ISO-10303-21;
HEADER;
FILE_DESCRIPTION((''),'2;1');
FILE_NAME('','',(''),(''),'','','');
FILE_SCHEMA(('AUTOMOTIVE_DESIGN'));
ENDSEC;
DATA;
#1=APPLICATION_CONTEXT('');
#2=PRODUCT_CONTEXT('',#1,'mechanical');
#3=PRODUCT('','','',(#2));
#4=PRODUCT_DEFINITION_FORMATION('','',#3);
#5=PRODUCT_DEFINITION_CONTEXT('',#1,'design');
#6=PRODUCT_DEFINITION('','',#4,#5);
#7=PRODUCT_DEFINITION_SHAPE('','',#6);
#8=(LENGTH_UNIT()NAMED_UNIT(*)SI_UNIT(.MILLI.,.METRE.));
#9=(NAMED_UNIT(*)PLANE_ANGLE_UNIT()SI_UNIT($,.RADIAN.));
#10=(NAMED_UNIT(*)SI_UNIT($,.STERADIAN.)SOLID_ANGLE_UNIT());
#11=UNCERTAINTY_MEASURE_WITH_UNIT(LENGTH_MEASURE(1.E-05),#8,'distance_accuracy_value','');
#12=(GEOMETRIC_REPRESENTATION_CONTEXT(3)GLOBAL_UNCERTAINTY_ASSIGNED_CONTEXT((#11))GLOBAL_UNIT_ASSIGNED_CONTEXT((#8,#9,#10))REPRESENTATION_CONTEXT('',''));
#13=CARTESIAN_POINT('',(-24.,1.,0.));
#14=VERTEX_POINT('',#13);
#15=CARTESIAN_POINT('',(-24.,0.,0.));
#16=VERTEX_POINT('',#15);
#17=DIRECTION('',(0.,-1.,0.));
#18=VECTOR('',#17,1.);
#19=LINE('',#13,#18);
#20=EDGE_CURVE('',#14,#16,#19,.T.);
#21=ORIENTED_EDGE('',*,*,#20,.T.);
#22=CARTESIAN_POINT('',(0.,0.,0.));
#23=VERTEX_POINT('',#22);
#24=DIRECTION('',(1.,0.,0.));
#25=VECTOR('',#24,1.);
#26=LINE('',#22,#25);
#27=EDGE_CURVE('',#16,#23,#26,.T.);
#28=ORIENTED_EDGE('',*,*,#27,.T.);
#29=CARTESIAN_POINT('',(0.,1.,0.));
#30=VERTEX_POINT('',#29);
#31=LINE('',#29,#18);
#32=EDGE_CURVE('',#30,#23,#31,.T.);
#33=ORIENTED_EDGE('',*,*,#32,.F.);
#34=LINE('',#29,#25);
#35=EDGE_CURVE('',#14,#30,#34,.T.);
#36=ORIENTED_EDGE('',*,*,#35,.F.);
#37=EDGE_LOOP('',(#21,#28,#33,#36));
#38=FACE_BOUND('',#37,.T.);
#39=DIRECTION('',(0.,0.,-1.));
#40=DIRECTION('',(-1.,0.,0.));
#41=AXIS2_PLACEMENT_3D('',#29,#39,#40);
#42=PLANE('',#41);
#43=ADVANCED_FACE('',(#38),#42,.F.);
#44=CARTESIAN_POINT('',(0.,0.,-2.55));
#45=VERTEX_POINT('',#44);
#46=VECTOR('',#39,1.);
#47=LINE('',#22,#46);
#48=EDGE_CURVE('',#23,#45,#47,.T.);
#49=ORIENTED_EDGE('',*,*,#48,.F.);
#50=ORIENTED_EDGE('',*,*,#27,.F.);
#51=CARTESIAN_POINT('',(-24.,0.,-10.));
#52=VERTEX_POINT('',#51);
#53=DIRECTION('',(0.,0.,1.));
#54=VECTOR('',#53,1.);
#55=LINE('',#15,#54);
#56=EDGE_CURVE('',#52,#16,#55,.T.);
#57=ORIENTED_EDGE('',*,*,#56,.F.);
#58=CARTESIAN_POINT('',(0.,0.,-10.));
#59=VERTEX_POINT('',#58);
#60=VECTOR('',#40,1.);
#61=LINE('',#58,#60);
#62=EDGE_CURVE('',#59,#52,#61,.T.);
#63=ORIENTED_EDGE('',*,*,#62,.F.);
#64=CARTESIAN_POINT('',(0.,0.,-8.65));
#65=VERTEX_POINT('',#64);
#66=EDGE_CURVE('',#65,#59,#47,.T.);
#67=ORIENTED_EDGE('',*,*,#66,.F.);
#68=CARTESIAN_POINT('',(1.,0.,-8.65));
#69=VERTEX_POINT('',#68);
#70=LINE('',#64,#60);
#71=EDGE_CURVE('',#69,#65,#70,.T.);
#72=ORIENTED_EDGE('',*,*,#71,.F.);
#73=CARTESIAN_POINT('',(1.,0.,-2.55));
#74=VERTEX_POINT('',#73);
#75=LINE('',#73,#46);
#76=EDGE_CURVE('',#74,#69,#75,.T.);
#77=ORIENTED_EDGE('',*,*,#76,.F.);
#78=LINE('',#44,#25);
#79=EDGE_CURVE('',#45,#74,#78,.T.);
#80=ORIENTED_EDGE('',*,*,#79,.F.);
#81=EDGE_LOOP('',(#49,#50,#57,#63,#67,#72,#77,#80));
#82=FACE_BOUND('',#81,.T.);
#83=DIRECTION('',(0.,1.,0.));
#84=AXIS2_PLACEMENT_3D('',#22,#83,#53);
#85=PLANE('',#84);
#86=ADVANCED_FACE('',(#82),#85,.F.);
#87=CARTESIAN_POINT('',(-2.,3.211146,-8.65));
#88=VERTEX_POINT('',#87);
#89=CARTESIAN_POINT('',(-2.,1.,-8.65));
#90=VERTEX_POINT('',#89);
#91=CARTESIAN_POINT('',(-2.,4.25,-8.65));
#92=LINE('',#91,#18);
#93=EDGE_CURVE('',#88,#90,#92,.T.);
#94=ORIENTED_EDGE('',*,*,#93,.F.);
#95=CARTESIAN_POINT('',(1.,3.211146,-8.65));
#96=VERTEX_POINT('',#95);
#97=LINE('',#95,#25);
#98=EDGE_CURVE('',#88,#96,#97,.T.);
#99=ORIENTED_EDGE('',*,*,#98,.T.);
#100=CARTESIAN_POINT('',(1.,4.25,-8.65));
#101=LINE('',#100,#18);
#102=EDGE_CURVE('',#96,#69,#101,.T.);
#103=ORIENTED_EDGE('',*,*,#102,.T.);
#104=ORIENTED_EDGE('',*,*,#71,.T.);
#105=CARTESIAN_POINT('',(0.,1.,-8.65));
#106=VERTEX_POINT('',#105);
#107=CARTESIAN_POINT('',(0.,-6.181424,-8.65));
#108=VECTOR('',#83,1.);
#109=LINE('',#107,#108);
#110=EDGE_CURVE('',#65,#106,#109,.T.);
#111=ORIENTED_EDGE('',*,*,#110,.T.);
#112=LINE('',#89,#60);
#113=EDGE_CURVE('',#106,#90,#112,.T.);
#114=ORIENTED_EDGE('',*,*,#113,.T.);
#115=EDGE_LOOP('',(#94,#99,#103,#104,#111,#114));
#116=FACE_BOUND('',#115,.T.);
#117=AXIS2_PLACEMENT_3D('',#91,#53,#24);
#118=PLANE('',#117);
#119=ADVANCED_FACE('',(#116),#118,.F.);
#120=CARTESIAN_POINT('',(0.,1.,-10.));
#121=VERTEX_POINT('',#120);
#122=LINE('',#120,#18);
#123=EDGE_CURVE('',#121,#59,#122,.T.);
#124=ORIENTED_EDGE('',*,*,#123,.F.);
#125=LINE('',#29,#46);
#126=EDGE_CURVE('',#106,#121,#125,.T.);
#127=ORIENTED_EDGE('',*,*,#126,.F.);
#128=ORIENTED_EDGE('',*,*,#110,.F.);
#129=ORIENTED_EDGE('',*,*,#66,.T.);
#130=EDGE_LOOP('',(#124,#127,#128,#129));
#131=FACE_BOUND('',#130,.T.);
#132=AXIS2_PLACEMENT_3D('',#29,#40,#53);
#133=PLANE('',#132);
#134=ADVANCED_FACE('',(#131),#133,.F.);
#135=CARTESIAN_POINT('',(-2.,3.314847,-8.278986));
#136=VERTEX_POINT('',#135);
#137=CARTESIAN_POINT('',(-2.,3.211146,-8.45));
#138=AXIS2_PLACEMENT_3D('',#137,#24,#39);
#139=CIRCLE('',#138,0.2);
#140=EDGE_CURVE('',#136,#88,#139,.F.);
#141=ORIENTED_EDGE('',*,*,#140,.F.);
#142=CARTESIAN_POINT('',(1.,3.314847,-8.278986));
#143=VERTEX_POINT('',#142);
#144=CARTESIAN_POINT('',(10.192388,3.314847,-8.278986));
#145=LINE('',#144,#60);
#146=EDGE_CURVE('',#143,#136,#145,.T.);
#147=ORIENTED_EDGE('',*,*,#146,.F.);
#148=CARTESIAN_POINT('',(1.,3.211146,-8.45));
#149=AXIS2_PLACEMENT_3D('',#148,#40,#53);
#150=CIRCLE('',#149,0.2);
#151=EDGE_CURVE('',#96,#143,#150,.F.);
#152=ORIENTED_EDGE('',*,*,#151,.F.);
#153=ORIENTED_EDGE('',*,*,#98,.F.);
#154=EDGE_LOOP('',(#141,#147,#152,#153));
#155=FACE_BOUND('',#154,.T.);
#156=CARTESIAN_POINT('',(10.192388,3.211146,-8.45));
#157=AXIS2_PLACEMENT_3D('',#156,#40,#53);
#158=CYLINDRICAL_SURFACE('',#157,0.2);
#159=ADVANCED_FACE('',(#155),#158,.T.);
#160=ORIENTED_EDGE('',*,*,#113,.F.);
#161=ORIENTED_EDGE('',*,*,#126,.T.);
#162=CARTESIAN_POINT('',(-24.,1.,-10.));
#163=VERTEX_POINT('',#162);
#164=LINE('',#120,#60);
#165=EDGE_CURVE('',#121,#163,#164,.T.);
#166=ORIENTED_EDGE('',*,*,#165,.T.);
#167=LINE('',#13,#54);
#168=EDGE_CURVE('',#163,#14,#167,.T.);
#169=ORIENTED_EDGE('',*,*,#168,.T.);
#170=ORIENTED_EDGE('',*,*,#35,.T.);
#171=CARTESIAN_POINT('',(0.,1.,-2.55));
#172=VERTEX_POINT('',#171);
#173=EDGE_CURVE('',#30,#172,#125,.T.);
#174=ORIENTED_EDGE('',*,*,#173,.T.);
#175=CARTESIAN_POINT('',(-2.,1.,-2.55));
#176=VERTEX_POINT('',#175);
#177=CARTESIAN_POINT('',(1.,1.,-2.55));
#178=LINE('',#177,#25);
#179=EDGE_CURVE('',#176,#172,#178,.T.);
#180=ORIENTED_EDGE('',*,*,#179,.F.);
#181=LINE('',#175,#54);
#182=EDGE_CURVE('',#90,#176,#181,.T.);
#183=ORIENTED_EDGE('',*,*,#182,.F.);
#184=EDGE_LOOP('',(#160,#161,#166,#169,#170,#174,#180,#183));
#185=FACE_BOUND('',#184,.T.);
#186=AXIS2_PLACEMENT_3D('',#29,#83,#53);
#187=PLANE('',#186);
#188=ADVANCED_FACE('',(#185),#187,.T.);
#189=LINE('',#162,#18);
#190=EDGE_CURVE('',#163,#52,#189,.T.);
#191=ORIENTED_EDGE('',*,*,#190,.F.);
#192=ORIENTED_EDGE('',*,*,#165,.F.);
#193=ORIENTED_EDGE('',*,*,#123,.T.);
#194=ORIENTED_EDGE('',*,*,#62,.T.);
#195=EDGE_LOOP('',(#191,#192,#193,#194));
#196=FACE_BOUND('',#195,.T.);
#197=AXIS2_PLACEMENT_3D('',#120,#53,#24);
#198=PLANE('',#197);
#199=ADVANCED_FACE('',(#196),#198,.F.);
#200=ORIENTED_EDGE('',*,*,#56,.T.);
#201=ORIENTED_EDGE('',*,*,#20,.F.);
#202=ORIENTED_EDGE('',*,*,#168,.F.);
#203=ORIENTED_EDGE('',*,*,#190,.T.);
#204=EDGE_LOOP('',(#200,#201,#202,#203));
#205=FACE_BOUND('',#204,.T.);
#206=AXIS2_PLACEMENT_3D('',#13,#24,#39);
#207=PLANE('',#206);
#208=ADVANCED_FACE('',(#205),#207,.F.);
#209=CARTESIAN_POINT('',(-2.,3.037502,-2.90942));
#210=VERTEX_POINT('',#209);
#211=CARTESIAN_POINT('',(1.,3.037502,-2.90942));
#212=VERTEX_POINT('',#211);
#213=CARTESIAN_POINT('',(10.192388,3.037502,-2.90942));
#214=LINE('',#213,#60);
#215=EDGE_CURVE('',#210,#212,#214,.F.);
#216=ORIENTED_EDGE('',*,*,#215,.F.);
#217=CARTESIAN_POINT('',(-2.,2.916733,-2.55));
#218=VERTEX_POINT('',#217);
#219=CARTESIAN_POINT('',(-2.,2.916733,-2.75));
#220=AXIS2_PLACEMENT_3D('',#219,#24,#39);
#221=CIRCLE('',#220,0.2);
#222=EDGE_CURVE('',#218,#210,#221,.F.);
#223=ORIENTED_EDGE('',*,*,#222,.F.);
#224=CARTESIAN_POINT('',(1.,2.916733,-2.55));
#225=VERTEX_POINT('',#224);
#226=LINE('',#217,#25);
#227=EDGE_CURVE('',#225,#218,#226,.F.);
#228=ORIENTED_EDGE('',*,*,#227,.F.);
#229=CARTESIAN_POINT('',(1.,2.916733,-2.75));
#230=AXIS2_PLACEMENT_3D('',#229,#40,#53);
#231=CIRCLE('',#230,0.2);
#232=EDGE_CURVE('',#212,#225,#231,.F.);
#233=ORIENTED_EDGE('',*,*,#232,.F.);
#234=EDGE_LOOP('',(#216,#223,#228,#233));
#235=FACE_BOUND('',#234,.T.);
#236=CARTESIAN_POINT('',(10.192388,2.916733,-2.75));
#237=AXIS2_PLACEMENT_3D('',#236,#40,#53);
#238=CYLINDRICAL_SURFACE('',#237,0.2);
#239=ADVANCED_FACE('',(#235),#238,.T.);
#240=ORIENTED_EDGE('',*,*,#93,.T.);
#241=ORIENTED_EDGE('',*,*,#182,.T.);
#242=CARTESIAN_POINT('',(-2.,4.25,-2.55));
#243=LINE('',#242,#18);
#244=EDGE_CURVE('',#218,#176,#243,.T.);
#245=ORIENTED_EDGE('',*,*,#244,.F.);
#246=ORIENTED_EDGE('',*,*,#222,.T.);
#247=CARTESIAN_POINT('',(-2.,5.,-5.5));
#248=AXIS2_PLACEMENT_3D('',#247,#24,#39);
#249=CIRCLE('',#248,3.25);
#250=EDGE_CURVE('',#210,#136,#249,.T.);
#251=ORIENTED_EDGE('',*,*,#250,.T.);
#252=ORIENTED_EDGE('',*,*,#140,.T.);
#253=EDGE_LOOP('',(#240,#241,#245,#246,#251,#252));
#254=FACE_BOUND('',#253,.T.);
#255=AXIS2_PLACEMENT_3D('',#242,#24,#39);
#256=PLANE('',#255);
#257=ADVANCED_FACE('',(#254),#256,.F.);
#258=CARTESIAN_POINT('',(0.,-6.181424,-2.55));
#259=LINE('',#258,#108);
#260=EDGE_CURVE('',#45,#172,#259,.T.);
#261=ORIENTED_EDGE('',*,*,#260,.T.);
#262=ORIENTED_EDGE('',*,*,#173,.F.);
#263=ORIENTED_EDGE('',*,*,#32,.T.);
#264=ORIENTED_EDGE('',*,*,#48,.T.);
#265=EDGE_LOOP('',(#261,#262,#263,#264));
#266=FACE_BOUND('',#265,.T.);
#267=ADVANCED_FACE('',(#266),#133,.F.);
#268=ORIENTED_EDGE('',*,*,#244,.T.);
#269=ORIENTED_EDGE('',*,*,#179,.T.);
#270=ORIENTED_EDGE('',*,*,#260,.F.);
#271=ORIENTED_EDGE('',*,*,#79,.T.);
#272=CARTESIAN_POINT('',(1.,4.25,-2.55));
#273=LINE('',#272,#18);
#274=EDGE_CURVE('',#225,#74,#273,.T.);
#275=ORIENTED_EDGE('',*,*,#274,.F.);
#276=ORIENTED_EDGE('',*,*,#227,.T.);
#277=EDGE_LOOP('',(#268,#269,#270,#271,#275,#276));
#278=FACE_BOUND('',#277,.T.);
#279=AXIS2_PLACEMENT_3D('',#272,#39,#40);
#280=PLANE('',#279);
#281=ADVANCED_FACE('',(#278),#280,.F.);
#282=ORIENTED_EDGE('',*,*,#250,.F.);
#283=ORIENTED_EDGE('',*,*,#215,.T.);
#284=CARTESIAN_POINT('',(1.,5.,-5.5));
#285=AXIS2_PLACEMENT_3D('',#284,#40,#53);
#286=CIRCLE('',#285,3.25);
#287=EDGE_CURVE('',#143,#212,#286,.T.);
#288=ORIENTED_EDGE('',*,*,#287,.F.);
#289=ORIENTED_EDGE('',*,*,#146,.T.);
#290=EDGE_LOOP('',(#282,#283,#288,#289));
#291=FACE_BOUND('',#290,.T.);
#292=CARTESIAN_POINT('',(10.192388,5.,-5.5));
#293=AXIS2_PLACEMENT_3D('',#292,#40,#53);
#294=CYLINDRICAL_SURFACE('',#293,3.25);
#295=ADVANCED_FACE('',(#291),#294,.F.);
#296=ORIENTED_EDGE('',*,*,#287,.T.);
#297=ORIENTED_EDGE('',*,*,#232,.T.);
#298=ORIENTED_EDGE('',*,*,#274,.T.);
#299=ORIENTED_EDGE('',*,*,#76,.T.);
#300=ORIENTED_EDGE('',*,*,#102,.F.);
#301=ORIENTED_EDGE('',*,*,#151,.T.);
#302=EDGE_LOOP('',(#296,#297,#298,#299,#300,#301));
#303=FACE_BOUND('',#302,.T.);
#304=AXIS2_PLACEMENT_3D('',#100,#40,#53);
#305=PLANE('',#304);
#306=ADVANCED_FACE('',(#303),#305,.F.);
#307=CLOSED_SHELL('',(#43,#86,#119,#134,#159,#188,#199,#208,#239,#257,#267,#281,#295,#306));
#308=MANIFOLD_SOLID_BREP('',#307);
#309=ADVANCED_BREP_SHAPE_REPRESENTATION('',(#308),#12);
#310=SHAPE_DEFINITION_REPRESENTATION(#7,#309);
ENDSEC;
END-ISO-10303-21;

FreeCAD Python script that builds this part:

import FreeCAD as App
import Part
import Sketcher


def edges_at(feature, points):
    """Names of the edges that pass closest to the given points."""
    edges = feature.Shape.Edges
    near = lambda p: min(range(len(edges)), key=lambda i: edges[i].distToShape(Part.Vertex(*p))[0])
    return sorted({f"Edge{near(p) + 1}" for p in points})

doc = App.newDocument("Part")
body = doc.addObject("PartDesign::Body", "Body")

sketch1 = body.newObject("Sketcher::SketchObject", "Sketch")
sketch1.AttachmentSupport = (doc.getObject("XZ_Plane"), [""])
sketch1.MapMode = "FlatFace"
sketch1.addGeometry([
    Part.LineSegment(App.Vector(-24, -10, 0), App.Vector(-24, 0, 0)),
    Part.LineSegment(App.Vector(-24, 0, 0), App.Vector(0, 0, 0)),
    Part.LineSegment(App.Vector(0, 0, 0), App.Vector(0, -10, 0)),
    Part.LineSegment(App.Vector(0, -10, 0), App.Vector(-24, -10, 0)),
], False)
sketch1.addConstraint([
    Sketcher.Constraint("Coincident", 0, 2, 1, 1),
    Sketcher.Constraint("Coincident", 1, 2, 2, 1),
    Sketcher.Constraint("Coincident", 2, 2, 3, 1),
    Sketcher.Constraint("Coincident", 3, 2, 0, 1),
    Sketcher.Constraint("Vertical", 0),
    Sketcher.Constraint("Horizontal", 1),
    Sketcher.Constraint("Vertical", 2),
    Sketcher.Constraint("Horizontal", 3),
    Sketcher.Constraint("Coincident", 1, 2, -1, 1),
    Sketcher.Constraint("DistanceX", 1, 1, 1, 2, 24.0),
    Sketcher.Constraint("DistanceY", 0, 1, 0, 2, 10.0),
])
pad1 = body.newObject("PartDesign::Pad", "Pad")
pad1.Profile = sketch1
pad1.Length = 1
pad1.Reversed = True

sketch2 = body.newObject("Sketcher::SketchObject", "Sketch001")
sketch2.AttachmentSupport = (doc.getObject("XZ_Plane"), [""])
sketch2.MapMode = "FlatFace"
sketch2.AttachmentOffset = App.Placement(App.Vector(0, 0, -1), App.Rotation())
sketch2.addGeometry([
    Part.LineSegment(App.Vector(-2, -8.65, 0), App.Vector(-2, -2.55, 0)),
    Part.LineSegment(App.Vector(-2, -2.55, 0), App.Vector(1, -2.55, 0)),
    Part.LineSegment(App.Vector(1, -2.55, 0), App.Vector(1, -8.65, 0)),
    Part.LineSegment(App.Vector(1, -8.65, 0), App.Vector(-2, -8.65, 0)),
], False)
sketch2.addConstraint([
    Sketcher.Constraint("Coincident", 0, 2, 1, 1),
    Sketcher.Constraint("Coincident", 1, 2, 2, 1),
    Sketcher.Constraint("Coincident", 2, 2, 3, 1),
    Sketcher.Constraint("Coincident", 3, 2, 0, 1),
    Sketcher.Constraint("Vertical", 0),
    Sketcher.Constraint("Horizontal", 1),
    Sketcher.Constraint("Vertical", 2),
    Sketcher.Constraint("Horizontal", 3),
    Sketcher.Constraint("DistanceX", 1, 1, 1, 2, 3.0),
    Sketcher.Constraint("DistanceY", 0, 1, 0, 2, 6.1),
    Sketcher.Constraint("DistanceX", 0, 2, -1, 1, 2.0),
    Sketcher.Constraint("DistanceY", 0, 2, -1, 1, 2.55),
])
pad2 = body.newObject("PartDesign::Pad", "Pad001")
pad2.Profile = sketch2
pad2.Length = 3.25
pad2.Reversed = True

sketch3 = body.newObject("Sketcher::SketchObject", "Sketch002")
sketch3.AttachmentSupport = (doc.getObject("YZ_Plane"), [""])
sketch3.MapMode = "FlatFace"
sketch3.AttachmentOffset = App.Placement(App.Vector(0, 0, -2), App.Rotation())
sketch3.addGeometry(Part.Circle(App.Vector(5, -5.5, 0), App.Vector(0, 0, 1), 3.25), False)
sketch3.addConstraint([
    Sketcher.Constraint("Diameter", 0, 6.5),
    Sketcher.Constraint("DistanceX", -1, 1, 0, 3, 5.0),
    Sketcher.Constraint("DistanceY", 0, 3, -1, 1, 5.5),
])
pocket1 = body.newObject("PartDesign::Pocket", "Pocket")
pocket1.Profile = sketch3
pocket1.Length = 3
pocket1.Reversed = True
doc.recompute()

fillet = body.newObject("PartDesign::Fillet", "Fillet")
fillet.Base = (pocket1, edges_at(pocket1, [(-0.5, 3.636, -2.55), (-0.5, 4.2, -8.65)]))
fillet.Radius = 0.2

sketch4 = body.newObject("Sketcher::SketchObject", "Sketch003")
sketch4.AttachmentSupport = (doc.getObject("XZ_Plane"), [""])
sketch4.MapMode = "FlatFace"
sketch4.AttachmentOffset = App.Placement(App.Vector(0, 0, -1), App.Rotation())
sketch4.addGeometry([
    Part.LineSegment(App.Vector(0, -2.55, 0), App.Vector(0, -8.65, 0)),
    Part.LineSegment(App.Vector(0, -8.65, 0), App.Vector(1, -8.65, 0)),
    Part.LineSegment(App.Vector(1, -8.65, 0), App.Vector(1, -2.55, 0)),
    Part.LineSegment(App.Vector(1, -2.55, 0), App.Vector(0, -2.55, 0)),
], False)
sketch4.addConstraint([
    Sketcher.Constraint("Coincident", 0, 2, 1, 1),
    Sketcher.Constraint("Coincident", 1, 2, 2, 1),
    Sketcher.Constraint("Coincident", 2, 2, 3, 1),
    Sketcher.Constraint("Coincident", 3, 2, 0, 1),
    Sketcher.Constraint("Vertical", 0),
    Sketcher.Constraint("Horizontal", 1),
    Sketcher.Constraint("Vertical", 2),
    Sketcher.Constraint("Horizontal", 3),
    Sketcher.Constraint("PointOnObject", 0, 2, -2),
    Sketcher.Constraint("DistanceX", 1, 1, 1, 2, 1.0),
    Sketcher.Constraint("DistanceY", 0, 2, 0, 1, 6.1),
    Sketcher.Constraint("DistanceY", 0, 2, -1, 1, 8.65),
])
pad3 = body.newObject("PartDesign::Pad", "Pad002")
pad3.Profile = sketch4
pad3.Length = 1

doc.recompute()
